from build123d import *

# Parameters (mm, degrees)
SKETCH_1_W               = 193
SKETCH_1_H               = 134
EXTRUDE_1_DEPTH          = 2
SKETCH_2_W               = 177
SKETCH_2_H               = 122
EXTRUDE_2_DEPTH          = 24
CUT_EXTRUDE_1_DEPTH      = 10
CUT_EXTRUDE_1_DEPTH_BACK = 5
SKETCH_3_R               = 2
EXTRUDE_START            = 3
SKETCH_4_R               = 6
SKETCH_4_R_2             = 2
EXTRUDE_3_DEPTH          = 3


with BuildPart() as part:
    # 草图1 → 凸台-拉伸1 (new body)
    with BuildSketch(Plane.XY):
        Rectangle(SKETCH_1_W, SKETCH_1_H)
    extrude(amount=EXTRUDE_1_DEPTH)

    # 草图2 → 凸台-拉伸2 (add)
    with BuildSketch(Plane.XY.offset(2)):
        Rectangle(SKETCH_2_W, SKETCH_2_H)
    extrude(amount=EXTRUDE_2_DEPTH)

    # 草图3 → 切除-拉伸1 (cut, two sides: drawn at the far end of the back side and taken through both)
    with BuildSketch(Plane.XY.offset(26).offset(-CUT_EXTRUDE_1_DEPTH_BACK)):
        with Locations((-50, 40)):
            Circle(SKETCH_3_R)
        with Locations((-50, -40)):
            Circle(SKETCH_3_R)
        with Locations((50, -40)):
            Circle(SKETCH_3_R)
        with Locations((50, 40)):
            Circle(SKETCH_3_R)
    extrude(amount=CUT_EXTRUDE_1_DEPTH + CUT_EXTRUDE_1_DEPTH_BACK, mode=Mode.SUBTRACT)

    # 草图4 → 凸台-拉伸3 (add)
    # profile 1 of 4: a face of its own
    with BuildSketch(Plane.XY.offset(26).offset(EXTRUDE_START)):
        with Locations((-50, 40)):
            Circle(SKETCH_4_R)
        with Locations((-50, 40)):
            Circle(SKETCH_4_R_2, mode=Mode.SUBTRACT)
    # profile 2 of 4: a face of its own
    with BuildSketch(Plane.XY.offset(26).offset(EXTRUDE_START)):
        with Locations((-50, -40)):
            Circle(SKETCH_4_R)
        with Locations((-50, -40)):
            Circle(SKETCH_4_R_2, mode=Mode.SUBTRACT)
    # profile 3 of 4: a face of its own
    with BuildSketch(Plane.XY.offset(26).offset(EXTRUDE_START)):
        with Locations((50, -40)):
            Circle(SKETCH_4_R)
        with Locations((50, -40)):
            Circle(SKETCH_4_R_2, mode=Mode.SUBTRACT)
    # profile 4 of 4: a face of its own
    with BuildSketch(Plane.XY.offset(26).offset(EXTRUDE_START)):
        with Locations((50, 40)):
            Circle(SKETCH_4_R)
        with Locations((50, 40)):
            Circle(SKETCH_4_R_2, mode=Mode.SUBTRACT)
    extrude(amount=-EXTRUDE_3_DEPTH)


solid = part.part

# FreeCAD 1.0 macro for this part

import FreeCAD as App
import Part
import Sketcher
from FreeCAD import Vector


def add_polygon(sketch, points):
    """Adds a closed chain of lines whose ends are joined by coincident constraints."""
    first, n = sketch.GeometryCount, len(points)
    for a, b in zip(points, points[1:] + points[:1]):
        sketch.addGeometry(Part.LineSegment(App.Vector(*a, 0), App.Vector(*b, 0)), False)
    for i in range(n):
        sketch.addConstraint(Sketcher.Constraint("Coincident", first + i, 2, first + (i + 1) % n, 1))

doc = App.newDocument("Part")
body = doc.addObject("PartDesign::Body", "Body")

# Sketch on XY plane
sketch1 = body.newObject("Sketcher::SketchObject", "Sketch")
sketch1.AttachmentSupport = (doc.getObject("XY_Plane"), [""])
sketch1.MapMode = "FlatFace"
add_polygon(sketch1, [(-96, 67), (-96, -67), (96, -67), (96, 67)])  # lines 0-3
sketch1.addConstraint([
    Sketcher.Constraint("Vertical", 0),
    Sketcher.Constraint("Horizontal", 1),
    Sketcher.Constraint("Vertical", 2),
    Sketcher.Constraint("Horizontal", 3),
    Sketcher.Constraint("Symmetric", 0, 2, 2, 2, -1, 1),
    Sketcher.Constraint("DistanceX", 1, 1, 1, 2, 193.0),
    Sketcher.Constraint("DistanceY", 0, 2, 0, 1, 134.0),
])
pad1 = body.newObject("PartDesign::Pad", "Pad")
pad1.Profile = sketch1
pad1.Length = 2

# Sketch on XY plane
sketch2 = body.newObject("Sketcher::SketchObject", "Sketch001")
sketch2.AttachmentSupport = (doc.getObject("XY_Plane"), [""])
sketch2.MapMode = "FlatFace"
sketch2.AttachmentOffset = App.Placement(Vector(0, 0, 2), App.Rotation())
add_polygon(sketch2, [(-88, 61), (-88, -61), (88, -61), (88, 61)])  # lines 0-3
sketch2.addConstraint([
    Sketcher.Constraint("Vertical", 0),
    Sketcher.Constraint("Horizontal", 1),
    Sketcher.Constraint("Vertical", 2),
    Sketcher.Constraint("Horizontal", 3),
    Sketcher.Constraint("Symmetric", 0, 2, 2, 2, -1, 1),
    Sketcher.Constraint("DistanceX", 1, 1, 1, 2, 177.0),
    Sketcher.Constraint("DistanceY", 0, 2, 0, 1, 122.0),
])
pad2 = body.newObject("PartDesign::Pad", "Pad001")
pad2.Profile = sketch2
pad2.Length = 24

# Sketch on XY plane
sketch3 = body.newObject("Sketcher::SketchObject", "Sketch002")
sketch3.AttachmentSupport = (doc.getObject("XY_Plane"), [""])
sketch3.MapMode = "FlatFace"
sketch3.AttachmentOffset = App.Placement(Vector(0, 0, 26), App.Rotation())
sketch3.addGeometry([
    Part.Circle(Vector(-50, 40, 0), Vector(0, 0, 1), 2),
    Part.Circle(Vector(-50, -40, 0), Vector(0, 0, 1), 2),
    Part.Circle(Vector(50, -40, 0), Vector(0, 0, 1), 2),
    Part.Circle(Vector(50, 40, 0), Vector(0, 0, 1), 2),
], False)
sketch3.addConstraint([
    Sketcher.Constraint("Equal", 0, 1),
    Sketcher.Constraint("Equal", 1, 2),
    Sketcher.Constraint("Equal", 2, 3),
    Sketcher.Constraint("Symmetric", 0, 3, 2, 3, -1, 1),
    Sketcher.Constraint("Symmetric", 1, 3, 3, 3, -1, 1),
    Sketcher.Constraint("Symmetric", 1, 3, 2, 3, -2),
    Sketcher.Constraint("Diameter", 0, 4.0),
    Sketcher.Constraint("DistanceX", 0, 3, -1, 1, 50.0),
    Sketcher.Constraint("DistanceY", -1, 1, 0, 3, 40.0),
])
pocket1 = body.newObject("PartDesign::Pocket", "Pocket")
pocket1.Profile = sketch3
pocket1.Type = "TwoLengths"
pocket1.Length = 10
pocket1.Length2 = 5
pocket1.Reversed = True

# Sketch on XY plane
sketch4 = body.newObject("Sketcher::SketchObject", "Sketch003")
sketch4.AttachmentSupport = (doc.getObject("XY_Plane"), [""])
sketch4.MapMode = "FlatFace"
sketch4.AttachmentOffset = App.Placement(Vector(0, 0, 29), App.Rotation())
sketch4.addGeometry([
    Part.Circle(Vector(-50, 40, 0), Vector(0, 0, 1), 6),  # 0
    Part.Circle(Vector(-50, 40, 0), Vector(0, 0, 1), 2),  # 1
    Part.Circle(Vector(-50, -40, 0), Vector(0, 0, 1), 6),  # 2
    Part.Circle(Vector(-50, -40, 0), Vector(0, 0, 1), 2),  # 3
    Part.Circle(Vector(50, -40, 0), Vector(0, 0, 1), 6),  # 4
    Part.Circle(Vector(50, -40, 0), Vector(0, 0, 1), 2),  # 5
    Part.Circle(Vector(50, 40, 0), Vector(0, 0, 1), 6),  # 6
    Part.Circle(Vector(50, 40, 0), Vector(0, 0, 1), 2),  # 7
], False)
sketch4.addConstraint([
    Sketcher.Constraint("Coincident", 1, 3, 0, 3),
    Sketcher.Constraint("Coincident", 3, 3, 2, 3),
    Sketcher.Constraint("Coincident", 5, 3, 4, 3),
    Sketcher.Constraint("Coincident", 7, 3, 6, 3),
    Sketcher.Constraint("Equal", 0, 2),
    Sketcher.Constraint("Equal", 1, 3),
    Sketcher.Constraint("Equal", 2, 4),
    Sketcher.Constraint("Equal", 3, 5),
    Sketcher.Constraint("Equal", 4, 6),
    Sketcher.Constraint("Equal", 5, 7),
    Sketcher.Constraint("Symmetric", 0, 3, 4, 3, -1, 1),
    Sketcher.Constraint("Symmetric", 2, 3, 6, 3, -1, 1),
    Sketcher.Constraint("Symmetric", 2, 3, 4, 3, -2),
    Sketcher.Constraint("Diameter", 0, 12.0),
    Sketcher.Constraint("Diameter", 1, 4.0),
    Sketcher.Constraint("DistanceX", 0, 3, -1, 1, 50.0),
    Sketcher.Constraint("DistanceY", -1, 1, 0, 3, 40.0),
])
pad3 = body.newObject("PartDesign::Pad", "Pad002")
pad3.Profile = sketch4
pad3.Length = 3
pad3.Reversed = True

doc.recompute()
